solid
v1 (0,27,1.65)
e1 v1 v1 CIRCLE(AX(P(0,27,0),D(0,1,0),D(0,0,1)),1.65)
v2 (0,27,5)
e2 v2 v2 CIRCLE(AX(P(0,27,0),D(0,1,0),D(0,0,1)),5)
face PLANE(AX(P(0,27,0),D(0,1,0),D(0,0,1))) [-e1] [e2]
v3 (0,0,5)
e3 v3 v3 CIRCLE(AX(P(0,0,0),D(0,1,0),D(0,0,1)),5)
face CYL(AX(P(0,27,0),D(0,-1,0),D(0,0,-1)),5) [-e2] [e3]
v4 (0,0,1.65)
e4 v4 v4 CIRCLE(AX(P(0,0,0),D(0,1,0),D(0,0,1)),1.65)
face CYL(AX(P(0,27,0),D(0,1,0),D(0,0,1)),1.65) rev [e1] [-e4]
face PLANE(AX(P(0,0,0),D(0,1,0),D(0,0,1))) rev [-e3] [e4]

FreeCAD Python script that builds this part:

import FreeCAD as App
import Part
import Sketcher

V = App.Vector
Q = App.Units.Quantity

doc = App.newDocument("Part")
params = doc.addObject("Spreadsheet::Sheet", "Params")
for row, (alias, value) in enumerate([
    ("sketch1_diameter", "10 mm"),
    ("pad1_length", "27 mm"),
    ("sketch2_diameter", "3.3 mm"),
    ("hole_diameter", "3.3 mm"),
], start=1):
    params.set(f"A{row}", alias)
    params.set(f"B{row}", "=" + value)
    params.setAlias(f"B{row}", alias)

body = doc.addObject("PartDesign::Body", "Body")

# Sketch on XZ plane
sketch1 = body.newObject("Sketcher::SketchObject", "Sketch")
sketch1.AttachmentSupport = (doc.getObject("XZ_Plane"), [""])
sketch1.MapMode = "FlatFace"
sketch1.addGeometry(Part.Circle(V(0, 0, 0), V(0, 0, 1), 5), False)
sketch1.addConstraint(Sketcher.Constraint("Coincident", 0, 3, -1, 1))
sketch1.addConstraint(Sketcher.Constraint("Diameter", 0, Q("10 mm")))
sketch1.setExpression("Constraints[1]", "Params.sketch1_diameter")
pad1 = body.newObject("PartDesign::Pad", "Pad")
pad1.Profile = sketch1
pad1.setExpression("Length", "Params.pad1_length")
pad1.Reversed = True

# Sketch on XZ plane
sketch2 = body.newObject("Sketcher::SketchObject", "Sketch001")
sketch2.AttachmentSupport = (doc.getObject("XZ_Plane"), [""])
sketch2.MapMode = "FlatFace"
sketch2.AttachmentOffset = App.Placement(V(0, 0, -27), App.Rotation())
sketch2.addGeometry(Part.Circle(V(0, 0, 0), V(0, 0, 1), 1.6), False)
sketch2.addConstraint(Sketcher.Constraint("Coincident", 0, 3, -1, 1))
sketch2.addConstraint(Sketcher.Constraint("Diameter", 0, Q("3.3 mm")))
sketch2.setExpression("Constraints[1]", "Params.sketch2_diameter")
doc.recompute()
hole = body.newObject("PartDesign::Hole", "Hole")
hole.Profile = sketch2
hole.ThreadType = "None"
hole.setExpression("Diameter", "Params.hole_diameter")
hole.DepthType = "ThroughAll"
hole.Reversed = True

doc.recompute()
